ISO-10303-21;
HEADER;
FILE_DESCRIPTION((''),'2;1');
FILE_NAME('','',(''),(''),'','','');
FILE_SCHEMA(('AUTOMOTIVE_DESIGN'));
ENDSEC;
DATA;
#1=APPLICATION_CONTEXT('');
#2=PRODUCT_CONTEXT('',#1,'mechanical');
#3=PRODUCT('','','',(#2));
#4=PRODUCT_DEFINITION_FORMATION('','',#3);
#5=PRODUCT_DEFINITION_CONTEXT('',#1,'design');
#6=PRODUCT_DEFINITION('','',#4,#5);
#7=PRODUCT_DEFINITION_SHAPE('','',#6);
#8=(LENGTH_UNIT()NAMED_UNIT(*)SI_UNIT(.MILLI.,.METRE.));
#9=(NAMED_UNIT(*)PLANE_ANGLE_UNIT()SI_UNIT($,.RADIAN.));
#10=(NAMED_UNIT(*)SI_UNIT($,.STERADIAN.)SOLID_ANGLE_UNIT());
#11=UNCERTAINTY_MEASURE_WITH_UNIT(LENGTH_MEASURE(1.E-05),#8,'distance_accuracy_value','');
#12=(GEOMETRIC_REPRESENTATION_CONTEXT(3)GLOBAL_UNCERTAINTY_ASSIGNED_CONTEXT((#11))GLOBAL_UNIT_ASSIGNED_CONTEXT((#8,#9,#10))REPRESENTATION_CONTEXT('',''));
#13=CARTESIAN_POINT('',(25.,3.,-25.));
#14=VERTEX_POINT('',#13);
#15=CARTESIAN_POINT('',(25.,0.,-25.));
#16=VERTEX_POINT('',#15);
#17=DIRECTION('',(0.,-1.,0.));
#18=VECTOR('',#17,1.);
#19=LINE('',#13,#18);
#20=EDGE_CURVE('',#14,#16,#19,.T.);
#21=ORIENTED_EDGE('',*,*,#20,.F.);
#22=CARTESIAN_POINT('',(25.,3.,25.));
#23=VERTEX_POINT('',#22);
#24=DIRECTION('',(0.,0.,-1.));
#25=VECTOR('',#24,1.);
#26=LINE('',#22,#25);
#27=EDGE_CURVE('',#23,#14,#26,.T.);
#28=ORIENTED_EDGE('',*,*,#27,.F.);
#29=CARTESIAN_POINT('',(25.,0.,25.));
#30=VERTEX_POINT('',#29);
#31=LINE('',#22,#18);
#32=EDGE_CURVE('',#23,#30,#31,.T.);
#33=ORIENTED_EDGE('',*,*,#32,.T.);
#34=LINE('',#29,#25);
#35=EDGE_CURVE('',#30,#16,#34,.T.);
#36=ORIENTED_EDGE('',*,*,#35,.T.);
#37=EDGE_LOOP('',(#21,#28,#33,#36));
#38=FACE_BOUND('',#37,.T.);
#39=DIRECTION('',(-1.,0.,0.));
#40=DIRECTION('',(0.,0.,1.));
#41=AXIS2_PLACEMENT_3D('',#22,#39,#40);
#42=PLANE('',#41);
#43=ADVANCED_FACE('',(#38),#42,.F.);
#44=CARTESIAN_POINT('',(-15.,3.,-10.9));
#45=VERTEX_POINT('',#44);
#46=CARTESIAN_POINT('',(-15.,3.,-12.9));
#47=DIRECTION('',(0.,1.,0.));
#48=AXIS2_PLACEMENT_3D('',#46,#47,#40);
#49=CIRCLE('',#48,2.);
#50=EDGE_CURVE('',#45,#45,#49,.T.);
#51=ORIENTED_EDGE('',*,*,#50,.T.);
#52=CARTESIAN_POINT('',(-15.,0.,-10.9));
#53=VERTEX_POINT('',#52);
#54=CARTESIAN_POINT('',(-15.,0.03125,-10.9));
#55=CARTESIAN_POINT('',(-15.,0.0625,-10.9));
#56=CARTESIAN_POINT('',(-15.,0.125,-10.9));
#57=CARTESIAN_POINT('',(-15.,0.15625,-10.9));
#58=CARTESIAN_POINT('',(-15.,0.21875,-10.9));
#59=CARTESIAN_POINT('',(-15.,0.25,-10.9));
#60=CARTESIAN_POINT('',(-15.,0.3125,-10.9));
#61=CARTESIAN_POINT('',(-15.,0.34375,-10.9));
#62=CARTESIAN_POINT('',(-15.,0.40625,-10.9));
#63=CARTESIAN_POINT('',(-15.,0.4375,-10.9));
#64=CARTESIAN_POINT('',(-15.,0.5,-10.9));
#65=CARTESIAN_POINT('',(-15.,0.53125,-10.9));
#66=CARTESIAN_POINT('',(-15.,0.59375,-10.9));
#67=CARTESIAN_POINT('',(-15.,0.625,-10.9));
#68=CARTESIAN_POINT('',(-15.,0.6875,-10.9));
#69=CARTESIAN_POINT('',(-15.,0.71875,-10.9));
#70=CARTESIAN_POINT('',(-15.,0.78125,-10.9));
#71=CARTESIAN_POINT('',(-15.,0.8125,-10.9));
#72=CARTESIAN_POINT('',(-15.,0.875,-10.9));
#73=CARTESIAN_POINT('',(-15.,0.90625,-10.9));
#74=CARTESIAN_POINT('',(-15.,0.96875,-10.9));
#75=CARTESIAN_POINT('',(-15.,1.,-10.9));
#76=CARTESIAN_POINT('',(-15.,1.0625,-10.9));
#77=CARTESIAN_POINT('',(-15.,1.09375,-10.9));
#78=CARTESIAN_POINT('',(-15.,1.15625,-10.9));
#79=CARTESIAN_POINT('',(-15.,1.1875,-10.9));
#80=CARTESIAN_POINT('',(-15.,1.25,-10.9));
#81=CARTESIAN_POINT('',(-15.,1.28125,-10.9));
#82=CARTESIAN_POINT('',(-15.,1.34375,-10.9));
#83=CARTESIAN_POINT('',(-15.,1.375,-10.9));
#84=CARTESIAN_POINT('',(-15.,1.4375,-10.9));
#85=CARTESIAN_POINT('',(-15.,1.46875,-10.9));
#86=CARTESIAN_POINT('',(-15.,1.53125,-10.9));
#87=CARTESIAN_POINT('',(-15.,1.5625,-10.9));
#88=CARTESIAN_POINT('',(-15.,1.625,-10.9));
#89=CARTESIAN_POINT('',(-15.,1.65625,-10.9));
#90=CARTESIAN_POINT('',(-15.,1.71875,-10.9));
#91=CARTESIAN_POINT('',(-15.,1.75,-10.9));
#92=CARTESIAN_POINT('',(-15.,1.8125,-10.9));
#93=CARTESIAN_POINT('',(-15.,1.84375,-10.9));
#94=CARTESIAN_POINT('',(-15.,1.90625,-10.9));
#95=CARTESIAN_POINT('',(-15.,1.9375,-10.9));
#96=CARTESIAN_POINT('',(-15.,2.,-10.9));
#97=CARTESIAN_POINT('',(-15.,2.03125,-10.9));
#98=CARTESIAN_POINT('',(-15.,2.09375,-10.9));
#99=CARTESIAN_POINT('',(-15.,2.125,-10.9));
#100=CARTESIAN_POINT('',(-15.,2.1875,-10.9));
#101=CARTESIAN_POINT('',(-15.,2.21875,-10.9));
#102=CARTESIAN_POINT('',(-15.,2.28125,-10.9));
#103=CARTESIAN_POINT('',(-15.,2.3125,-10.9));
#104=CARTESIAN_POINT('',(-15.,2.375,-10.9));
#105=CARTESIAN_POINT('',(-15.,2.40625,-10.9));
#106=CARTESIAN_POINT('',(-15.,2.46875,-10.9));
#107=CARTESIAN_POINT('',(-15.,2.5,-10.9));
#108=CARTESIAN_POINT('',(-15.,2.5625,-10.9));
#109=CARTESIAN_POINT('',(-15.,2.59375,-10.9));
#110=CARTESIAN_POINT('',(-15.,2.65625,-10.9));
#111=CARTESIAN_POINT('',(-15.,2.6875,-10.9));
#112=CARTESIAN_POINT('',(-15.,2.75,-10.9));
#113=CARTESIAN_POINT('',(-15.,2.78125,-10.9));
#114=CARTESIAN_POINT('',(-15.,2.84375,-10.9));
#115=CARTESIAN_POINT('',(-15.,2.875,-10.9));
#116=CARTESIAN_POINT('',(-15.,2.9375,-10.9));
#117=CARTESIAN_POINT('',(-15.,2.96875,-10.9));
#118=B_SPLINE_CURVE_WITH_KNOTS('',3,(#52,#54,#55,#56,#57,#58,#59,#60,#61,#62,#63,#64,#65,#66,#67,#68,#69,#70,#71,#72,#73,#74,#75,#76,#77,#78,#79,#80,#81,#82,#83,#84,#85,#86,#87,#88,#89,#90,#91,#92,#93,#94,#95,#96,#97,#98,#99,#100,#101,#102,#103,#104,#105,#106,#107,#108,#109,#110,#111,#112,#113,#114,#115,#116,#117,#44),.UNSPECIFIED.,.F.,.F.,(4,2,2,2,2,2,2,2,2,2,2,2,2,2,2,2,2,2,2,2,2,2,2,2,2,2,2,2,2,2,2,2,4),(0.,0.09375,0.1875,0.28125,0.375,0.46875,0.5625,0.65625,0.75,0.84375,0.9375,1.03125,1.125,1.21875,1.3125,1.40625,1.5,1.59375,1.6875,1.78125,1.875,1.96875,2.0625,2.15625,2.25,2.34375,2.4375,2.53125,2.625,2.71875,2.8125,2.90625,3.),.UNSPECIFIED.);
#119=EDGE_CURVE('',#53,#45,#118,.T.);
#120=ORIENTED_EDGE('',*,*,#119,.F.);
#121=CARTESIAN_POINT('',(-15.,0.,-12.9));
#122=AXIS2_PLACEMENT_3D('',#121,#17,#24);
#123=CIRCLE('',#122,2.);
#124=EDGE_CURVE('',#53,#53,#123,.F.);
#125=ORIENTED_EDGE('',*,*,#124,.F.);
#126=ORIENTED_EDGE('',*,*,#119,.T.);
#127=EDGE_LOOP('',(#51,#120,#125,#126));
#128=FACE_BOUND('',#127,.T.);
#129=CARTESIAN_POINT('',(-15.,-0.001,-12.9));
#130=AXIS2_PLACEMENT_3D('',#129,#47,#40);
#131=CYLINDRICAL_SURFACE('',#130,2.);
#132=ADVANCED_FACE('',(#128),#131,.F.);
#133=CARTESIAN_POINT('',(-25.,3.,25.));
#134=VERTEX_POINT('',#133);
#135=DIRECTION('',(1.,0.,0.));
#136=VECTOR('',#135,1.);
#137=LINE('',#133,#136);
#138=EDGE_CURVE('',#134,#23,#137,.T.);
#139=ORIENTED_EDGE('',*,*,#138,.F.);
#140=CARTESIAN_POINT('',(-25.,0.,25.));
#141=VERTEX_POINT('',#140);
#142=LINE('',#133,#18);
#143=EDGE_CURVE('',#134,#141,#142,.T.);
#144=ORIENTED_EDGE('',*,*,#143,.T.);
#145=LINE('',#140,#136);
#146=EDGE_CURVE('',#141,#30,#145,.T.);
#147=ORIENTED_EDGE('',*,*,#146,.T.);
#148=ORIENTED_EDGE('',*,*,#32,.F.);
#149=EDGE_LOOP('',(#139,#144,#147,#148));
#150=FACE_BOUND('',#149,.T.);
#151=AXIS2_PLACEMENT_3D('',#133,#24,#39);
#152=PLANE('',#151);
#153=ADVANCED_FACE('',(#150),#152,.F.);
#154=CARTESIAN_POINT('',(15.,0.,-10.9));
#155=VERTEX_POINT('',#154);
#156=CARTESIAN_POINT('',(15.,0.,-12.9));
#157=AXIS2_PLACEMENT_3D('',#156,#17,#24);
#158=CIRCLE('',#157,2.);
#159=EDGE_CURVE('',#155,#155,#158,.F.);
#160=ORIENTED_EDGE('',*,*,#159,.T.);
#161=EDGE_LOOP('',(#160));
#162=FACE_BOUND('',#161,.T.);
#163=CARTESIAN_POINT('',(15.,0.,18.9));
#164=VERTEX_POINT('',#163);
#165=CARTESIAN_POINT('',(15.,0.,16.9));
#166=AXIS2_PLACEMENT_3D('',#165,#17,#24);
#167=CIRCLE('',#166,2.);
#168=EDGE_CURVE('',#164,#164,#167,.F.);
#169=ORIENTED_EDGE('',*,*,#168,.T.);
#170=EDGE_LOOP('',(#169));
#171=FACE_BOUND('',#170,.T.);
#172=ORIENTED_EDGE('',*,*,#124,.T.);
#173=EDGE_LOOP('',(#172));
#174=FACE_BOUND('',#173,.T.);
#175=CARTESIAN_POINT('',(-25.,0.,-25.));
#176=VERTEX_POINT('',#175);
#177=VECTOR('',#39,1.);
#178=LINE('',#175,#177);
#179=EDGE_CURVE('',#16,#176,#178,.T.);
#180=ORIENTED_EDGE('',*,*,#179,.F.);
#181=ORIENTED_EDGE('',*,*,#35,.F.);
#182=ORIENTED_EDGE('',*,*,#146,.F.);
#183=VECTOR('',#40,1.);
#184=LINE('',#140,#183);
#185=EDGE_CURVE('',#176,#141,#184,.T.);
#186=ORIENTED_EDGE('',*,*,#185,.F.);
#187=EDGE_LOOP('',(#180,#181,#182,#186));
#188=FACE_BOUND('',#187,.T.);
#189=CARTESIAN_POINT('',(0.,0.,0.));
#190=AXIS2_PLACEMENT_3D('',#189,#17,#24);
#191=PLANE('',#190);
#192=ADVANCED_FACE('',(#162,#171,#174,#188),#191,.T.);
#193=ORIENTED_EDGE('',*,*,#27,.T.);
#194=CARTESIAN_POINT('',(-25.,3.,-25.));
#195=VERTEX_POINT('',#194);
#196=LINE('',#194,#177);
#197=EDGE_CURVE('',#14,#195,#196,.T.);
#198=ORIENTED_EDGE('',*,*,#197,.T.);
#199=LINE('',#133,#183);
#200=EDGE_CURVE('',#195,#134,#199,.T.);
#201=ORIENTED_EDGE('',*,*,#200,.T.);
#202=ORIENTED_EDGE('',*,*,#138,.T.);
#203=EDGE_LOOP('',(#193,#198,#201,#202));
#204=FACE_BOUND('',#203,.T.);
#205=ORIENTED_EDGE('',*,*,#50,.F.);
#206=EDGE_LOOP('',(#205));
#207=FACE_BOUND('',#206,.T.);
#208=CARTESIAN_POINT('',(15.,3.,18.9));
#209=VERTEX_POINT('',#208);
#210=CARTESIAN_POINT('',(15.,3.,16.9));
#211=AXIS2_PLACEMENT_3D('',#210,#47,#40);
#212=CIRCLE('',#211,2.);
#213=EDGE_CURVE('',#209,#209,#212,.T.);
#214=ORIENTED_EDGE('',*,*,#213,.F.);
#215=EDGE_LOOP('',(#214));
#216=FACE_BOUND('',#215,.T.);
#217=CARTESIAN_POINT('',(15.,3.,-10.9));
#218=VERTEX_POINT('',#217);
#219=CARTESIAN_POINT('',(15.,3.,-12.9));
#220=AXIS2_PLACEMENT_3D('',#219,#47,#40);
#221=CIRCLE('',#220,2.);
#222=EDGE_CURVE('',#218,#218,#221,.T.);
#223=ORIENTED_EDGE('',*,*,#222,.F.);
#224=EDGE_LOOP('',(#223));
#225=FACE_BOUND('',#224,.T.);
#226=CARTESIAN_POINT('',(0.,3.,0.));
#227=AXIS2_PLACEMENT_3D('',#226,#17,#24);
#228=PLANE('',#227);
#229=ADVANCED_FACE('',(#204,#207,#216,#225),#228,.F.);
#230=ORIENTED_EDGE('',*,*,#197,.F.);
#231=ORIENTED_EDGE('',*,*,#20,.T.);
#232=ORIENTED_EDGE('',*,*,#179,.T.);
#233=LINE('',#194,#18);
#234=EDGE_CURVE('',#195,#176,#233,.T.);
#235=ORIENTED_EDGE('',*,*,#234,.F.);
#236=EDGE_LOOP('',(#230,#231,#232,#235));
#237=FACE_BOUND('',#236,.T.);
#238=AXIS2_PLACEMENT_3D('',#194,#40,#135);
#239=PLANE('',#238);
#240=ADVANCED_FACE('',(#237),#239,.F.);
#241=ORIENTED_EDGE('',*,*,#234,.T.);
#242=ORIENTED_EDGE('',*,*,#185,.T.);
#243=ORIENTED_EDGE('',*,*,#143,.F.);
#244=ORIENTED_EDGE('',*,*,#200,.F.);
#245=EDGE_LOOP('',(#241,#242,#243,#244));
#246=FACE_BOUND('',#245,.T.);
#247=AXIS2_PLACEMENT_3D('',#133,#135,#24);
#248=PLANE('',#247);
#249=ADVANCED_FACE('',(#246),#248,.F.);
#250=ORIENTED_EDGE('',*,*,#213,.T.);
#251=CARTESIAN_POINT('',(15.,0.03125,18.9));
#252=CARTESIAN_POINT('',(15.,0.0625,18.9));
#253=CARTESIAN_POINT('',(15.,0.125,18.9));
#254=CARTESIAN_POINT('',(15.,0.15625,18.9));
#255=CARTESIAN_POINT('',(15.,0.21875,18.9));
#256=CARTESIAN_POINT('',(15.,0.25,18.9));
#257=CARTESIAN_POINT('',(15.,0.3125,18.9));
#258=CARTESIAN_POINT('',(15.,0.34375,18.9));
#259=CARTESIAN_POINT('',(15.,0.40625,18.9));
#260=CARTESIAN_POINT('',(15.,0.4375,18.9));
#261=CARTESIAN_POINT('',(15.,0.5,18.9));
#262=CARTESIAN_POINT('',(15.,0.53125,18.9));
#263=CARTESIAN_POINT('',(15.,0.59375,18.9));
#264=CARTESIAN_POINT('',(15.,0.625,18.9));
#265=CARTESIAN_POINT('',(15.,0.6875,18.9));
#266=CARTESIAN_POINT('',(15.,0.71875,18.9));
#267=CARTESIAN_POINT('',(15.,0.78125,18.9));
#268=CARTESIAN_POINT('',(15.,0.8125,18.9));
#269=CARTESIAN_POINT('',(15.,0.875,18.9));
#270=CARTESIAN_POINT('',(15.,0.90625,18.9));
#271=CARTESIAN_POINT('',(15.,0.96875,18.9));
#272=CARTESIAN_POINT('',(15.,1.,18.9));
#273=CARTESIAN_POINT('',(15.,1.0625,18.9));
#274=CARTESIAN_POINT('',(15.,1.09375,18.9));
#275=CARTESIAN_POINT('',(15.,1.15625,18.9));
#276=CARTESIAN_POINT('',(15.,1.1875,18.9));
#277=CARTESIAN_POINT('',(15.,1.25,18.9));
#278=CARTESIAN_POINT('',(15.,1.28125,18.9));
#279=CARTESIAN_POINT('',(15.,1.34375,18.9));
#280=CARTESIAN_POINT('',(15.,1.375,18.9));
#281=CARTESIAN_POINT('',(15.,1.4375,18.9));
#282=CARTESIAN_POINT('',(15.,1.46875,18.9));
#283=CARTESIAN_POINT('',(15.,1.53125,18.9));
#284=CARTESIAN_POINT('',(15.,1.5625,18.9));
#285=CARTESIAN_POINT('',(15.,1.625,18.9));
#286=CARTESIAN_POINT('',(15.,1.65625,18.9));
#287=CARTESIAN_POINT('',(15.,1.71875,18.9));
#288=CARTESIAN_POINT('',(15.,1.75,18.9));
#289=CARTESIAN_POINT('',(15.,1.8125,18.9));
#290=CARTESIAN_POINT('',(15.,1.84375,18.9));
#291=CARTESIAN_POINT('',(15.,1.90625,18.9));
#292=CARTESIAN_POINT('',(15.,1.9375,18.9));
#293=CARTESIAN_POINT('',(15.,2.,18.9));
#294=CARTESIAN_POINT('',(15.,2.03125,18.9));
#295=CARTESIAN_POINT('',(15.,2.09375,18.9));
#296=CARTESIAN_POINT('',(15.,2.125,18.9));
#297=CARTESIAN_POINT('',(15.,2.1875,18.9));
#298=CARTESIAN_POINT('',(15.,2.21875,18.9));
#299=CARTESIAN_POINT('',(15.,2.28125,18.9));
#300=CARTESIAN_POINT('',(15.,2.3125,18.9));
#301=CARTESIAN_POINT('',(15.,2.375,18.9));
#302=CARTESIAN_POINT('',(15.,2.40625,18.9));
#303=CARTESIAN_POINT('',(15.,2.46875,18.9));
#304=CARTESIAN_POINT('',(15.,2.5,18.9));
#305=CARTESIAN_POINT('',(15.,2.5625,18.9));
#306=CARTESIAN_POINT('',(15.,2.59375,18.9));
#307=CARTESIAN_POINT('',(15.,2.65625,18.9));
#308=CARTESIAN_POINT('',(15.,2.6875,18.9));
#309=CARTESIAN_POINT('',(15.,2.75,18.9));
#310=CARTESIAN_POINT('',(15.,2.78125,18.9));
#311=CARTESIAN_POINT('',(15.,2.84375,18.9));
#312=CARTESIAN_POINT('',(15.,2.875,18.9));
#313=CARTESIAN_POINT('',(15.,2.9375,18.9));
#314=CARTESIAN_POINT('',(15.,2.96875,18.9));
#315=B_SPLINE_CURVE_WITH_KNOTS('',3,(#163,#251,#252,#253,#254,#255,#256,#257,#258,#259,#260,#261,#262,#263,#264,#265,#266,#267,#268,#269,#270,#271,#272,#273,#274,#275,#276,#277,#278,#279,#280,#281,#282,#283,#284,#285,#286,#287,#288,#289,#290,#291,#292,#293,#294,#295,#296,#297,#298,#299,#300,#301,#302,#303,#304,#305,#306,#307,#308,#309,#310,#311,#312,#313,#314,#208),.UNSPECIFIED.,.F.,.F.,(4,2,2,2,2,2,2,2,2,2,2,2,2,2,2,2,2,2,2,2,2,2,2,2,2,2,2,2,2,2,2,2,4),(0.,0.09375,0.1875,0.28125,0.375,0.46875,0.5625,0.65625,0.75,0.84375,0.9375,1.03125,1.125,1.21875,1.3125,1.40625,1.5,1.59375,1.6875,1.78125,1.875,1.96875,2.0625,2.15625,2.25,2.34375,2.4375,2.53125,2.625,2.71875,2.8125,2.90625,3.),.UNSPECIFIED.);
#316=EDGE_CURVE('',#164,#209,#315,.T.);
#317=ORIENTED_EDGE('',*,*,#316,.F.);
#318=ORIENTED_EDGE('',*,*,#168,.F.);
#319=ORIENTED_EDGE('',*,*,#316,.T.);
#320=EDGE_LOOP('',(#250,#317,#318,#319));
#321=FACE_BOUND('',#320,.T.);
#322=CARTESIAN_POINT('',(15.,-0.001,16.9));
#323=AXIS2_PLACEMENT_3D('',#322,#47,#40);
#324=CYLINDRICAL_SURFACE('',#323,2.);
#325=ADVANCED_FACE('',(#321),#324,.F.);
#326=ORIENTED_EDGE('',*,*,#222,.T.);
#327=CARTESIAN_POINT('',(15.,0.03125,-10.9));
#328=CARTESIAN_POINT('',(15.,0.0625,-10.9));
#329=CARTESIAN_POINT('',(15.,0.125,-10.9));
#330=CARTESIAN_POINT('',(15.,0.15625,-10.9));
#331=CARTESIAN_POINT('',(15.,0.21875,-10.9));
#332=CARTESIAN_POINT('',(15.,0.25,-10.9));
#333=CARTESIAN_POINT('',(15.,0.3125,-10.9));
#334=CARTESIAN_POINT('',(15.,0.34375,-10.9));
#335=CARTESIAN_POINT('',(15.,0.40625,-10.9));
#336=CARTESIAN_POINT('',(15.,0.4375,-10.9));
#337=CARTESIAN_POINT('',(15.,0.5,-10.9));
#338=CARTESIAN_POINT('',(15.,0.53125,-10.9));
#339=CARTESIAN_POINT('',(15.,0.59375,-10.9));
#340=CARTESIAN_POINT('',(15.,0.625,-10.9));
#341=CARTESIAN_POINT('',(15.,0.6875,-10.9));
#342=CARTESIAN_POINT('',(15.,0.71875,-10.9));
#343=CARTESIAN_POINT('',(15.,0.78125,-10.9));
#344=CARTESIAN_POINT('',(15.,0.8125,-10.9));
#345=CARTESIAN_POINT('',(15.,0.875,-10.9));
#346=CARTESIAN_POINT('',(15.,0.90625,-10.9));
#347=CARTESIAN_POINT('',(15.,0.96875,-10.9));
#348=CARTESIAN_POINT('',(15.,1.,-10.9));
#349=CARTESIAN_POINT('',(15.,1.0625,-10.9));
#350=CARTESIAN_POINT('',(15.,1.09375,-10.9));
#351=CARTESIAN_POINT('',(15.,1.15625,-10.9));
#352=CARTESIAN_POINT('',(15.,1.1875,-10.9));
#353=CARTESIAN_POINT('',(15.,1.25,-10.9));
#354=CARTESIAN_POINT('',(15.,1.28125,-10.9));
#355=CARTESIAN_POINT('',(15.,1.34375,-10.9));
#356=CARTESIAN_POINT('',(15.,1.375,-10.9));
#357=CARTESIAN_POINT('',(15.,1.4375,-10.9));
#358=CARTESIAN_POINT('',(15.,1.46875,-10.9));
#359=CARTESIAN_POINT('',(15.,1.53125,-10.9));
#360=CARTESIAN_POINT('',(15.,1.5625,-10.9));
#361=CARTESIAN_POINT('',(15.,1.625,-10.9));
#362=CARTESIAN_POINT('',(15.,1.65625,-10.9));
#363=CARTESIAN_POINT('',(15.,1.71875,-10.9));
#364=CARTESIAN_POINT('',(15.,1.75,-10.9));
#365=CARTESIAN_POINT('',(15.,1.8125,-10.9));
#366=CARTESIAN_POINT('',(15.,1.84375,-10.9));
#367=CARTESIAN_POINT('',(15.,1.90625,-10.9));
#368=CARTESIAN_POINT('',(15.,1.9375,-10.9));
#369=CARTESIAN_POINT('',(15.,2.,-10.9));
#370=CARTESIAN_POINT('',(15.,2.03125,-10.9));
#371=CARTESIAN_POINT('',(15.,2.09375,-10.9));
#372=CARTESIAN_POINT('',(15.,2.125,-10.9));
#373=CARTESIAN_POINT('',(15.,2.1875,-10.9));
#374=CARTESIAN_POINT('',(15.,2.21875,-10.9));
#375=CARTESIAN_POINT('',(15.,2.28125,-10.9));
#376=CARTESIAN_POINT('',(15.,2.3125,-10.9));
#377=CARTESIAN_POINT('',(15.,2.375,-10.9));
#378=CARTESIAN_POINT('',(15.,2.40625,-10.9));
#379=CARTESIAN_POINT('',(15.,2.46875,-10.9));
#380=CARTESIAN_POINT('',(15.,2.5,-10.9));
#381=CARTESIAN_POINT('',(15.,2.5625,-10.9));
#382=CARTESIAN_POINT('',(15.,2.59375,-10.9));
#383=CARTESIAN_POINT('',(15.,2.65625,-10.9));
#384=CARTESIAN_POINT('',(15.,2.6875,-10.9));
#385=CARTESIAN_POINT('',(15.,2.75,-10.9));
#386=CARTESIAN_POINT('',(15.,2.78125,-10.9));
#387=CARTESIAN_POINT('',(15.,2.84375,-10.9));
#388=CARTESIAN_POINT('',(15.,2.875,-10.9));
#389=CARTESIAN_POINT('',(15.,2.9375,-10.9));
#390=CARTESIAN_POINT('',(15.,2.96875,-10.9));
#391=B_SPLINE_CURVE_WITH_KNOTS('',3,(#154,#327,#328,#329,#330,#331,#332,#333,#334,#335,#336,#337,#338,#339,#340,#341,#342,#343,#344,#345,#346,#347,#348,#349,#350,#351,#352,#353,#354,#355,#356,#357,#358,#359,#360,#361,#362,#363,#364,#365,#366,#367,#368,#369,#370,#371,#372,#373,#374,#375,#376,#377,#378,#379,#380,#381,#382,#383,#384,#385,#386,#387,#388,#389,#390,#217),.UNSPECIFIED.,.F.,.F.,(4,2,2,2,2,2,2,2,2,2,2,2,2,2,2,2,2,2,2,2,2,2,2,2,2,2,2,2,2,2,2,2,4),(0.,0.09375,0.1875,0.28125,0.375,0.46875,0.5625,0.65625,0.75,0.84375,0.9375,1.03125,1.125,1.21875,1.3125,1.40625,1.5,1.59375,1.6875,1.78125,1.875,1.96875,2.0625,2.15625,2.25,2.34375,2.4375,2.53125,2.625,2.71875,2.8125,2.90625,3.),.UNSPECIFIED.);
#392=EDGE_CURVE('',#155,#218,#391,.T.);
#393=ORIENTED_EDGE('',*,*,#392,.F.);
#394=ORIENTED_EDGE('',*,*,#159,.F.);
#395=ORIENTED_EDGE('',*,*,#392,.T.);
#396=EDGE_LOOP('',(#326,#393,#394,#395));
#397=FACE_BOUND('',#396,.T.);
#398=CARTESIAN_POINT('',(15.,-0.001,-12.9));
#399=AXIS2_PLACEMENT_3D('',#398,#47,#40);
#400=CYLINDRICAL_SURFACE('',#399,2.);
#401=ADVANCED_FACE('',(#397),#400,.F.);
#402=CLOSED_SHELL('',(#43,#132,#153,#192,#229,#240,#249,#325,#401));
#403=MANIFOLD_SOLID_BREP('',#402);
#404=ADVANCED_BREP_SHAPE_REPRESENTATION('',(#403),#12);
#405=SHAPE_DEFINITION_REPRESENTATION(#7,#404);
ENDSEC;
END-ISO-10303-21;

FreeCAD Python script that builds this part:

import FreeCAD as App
import Part
import Sketcher


def add_polygon(sketch, points):
    """Adds a closed chain of lines whose ends are joined by coincident constraints."""
    first, n = sketch.GeometryCount, len(points)
    for a, b in zip(points, points[1:] + points[:1]):
        sketch.addGeometry(Part.LineSegment(App.Vector(*a, 0), App.Vector(*b, 0)), False)
    for i in range(n):
        sketch.addConstraint(Sketcher.Constraint("Coincident", first + i, 2, first + (i + 1) % n, 1))

doc = App.newDocument("Part")
params = doc.addObject("Spreadsheet::Sheet", "Params")
for row, (alias, value) in enumerate([
    ("sketch1_width", "50 mm"),
    ("pad1_length", "3 mm"),
    ("sketch2_diameter", "4 mm"),
    ("sketch3_diameter", "4 mm"),
    ("sketch4_diameter", "4 mm"),
], start=1):
    params.set(f"A{row}", alias)
    params.set(f"B{row}", "=" + value)
    params.setAlias(f"B{row}", alias)

body = doc.addObject("PartDesign::Body", "Body")

# Sketch on XZ plane
sketch1 = body.newObject("Sketcher::SketchObject", "Sketch")
sketch1.AttachmentSupport = (doc.getObject("XZ_Plane"), [""])
sketch1.MapMode = "FlatFace"
add_polygon(sketch1, [(-25, -25), (-25, 25), (25, 25), (25, -25)])  # lines 0-3
sketch1.addConstraint(Sketcher.Constraint("Vertical", 0))
sketch1.addConstraint(Sketcher.Constraint("Horizontal", 1))
sketch1.addConstraint(Sketcher.Constraint("Vertical", 2))
sketch1.addConstraint(Sketcher.Constraint("Horizontal", 3))
sketch1.addConstraint(Sketcher.Constraint("Symmetric", 0, 2, 2, 2, -1, 1))
sketch1.addConstraint(Sketcher.Constraint("Equal", 3, 0))
sketch1.addConstraint(Sketcher.Constraint("DistanceX", 1, 1, 1, 2, 50.0))
sketch1.setExpression("Constraints[10]", "Params.sketch1_width")
pad1 = body.newObject("PartDesign::Pad", "Pad")
pad1.Profile = sketch1
pad1.setExpression("Length", "Params.pad1_length")
pad1.Reversed = True

# Sketch on XZ plane
sketch2 = body.newObject("Sketcher::SketchObject", "Sketch001")
sketch2.AttachmentSupport = (doc.getObject("XZ_Plane"), [""])
sketch2.MapMode = "FlatFace"
sketch2.AttachmentOffset = App.Placement(App.Vector(0, 0, -3), App.Rotation())
sketch2.addGeometry(Part.Circle(App.Vector(-15, -12.9, 0), App.Vector(0, 0, 1), 2), False)
sketch2.addConstraint(Sketcher.Constraint("Diameter", 0, 4.0))
sketch2.addConstraint(Sketcher.Constraint("DistanceX", 0, 3, -1, 1, 15.0))
sketch2.addConstraint(Sketcher.Constraint("DistanceY", 0, 3, -1, 1, 12.9))
sketch2.setExpression("Constraints[0]", "Params.sketch2_diameter")
pocket1 = body.newObject("PartDesign::Pocket", "Pocket")
pocket1.Profile = sketch2
pocket1.Type = "UpToFirst"
pocket1.Reversed = True

# Sketch on XZ plane
sketch3 = body.newObject("Sketcher::SketchObject", "Sketch002")
sketch3.AttachmentSupport = (doc.getObject("XZ_Plane"), [""])
sketch3.MapMode = "FlatFace"
sketch3.AttachmentOffset = App.Placement(App.Vector(0, 0, -3), App.Rotation())
sketch3.addGeometry(Part.Circle(App.Vector(15, -12.9, 0), App.Vector(0, 0, 1), 2), False)
sketch3.addConstraint(Sketcher.Constraint("Diameter", 0, 4.0))
sketch3.addConstraint(Sketcher.Constraint("DistanceX", -1, 1, 0, 3, 15.0))
sketch3.addConstraint(Sketcher.Constraint("DistanceY", 0, 3, -1, 1, 12.9))
sketch3.setExpression("Constraints[0]", "Params.sketch3_diameter")
pocket2 = body.newObject("PartDesign::Pocket", "Pocket001")
pocket2.Profile = sketch3
pocket2.Type = "UpToFirst"
pocket2.Reversed = True

# Sketch on XZ plane
sketch4 = body.newObject("Sketcher::SketchObject", "Sketch003")
sketch4.AttachmentSupport = (doc.getObject("XZ_Plane"), [""])
sketch4.MapMode = "FlatFace"
sketch4.AttachmentOffset = App.Placement(App.Vector(0, 0, -3), App.Rotation())
sketch4.addGeometry(Part.Circle(App.Vector(15, 16.9, 0), App.Vector(0, 0, 1), 2), False)
sketch4.addConstraint(Sketcher.Constraint("Diameter", 0, 4.0))
sketch4.addConstraint(Sketcher.Constraint("DistanceX", -1, 1, 0, 3, 15.0))
sketch4.addConstraint(Sketcher.Constraint("DistanceY", -1, 1, 0, 3, 16.9))
sketch4.setExpression("Constraints[0]", "Params.sketch4_diameter")
pocket3 = body.newObject("PartDesign::Pocket", "Pocket002")
pocket3.Profile = sketch4
pocket3.Type = "UpToFirst"
pocket3.Reversed = True

doc.recompute()
